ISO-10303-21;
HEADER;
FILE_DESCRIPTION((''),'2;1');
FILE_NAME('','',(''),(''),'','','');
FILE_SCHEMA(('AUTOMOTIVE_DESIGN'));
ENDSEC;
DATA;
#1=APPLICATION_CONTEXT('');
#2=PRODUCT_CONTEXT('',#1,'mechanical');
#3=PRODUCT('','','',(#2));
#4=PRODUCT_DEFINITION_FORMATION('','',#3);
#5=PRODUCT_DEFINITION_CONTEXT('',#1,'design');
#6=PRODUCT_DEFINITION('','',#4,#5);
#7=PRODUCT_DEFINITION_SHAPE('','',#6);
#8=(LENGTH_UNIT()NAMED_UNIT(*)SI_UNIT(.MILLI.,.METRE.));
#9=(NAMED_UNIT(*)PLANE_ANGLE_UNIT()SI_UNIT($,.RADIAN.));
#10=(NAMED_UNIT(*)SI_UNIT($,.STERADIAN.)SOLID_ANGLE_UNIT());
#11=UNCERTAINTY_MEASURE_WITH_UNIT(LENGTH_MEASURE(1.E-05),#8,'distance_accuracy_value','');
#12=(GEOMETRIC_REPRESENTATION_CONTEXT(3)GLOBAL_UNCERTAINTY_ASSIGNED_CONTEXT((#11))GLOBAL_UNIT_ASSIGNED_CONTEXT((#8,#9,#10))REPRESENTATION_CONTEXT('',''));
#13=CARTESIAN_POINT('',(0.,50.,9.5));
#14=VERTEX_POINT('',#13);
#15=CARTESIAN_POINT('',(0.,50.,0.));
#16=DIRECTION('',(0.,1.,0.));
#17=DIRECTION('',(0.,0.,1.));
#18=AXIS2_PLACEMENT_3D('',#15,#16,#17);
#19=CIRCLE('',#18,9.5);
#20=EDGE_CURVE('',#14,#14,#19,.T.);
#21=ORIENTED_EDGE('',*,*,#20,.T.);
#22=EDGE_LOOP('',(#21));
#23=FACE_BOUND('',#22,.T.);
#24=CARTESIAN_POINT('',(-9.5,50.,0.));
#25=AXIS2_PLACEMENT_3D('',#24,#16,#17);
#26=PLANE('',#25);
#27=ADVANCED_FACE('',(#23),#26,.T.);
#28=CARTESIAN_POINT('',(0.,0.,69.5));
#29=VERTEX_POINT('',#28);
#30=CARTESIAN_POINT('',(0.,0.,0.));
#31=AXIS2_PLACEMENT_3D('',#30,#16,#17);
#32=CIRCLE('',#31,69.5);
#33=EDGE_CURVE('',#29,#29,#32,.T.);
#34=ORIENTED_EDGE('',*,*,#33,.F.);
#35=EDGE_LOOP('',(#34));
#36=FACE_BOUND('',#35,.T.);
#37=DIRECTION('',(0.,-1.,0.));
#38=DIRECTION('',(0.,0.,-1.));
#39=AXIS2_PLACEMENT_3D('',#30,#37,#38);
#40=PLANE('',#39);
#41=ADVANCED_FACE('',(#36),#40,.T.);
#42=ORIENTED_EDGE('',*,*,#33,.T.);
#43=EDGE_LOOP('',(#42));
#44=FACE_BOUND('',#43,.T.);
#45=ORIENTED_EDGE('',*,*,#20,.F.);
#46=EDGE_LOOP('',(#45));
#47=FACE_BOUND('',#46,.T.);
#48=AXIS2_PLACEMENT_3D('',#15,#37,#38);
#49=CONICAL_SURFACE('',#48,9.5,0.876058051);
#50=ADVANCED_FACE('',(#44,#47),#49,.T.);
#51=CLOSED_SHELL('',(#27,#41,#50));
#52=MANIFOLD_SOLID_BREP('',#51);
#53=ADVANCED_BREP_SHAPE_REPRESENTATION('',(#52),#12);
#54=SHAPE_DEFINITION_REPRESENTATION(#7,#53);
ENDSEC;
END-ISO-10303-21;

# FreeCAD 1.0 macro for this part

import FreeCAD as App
import Part
import Sketcher

doc = App.newDocument("Part")
params = doc.addObject("Spreadsheet::Sheet", "Params")
for row, (alias, value) in enumerate([
    ("sketch1_height", "50 mm"),
    ("sketch1_width", "69.5 mm"),
    ("sketch1_width2", "9.5 mm"),
    ("revolution_angle", "360 deg"),
], start=1):
    params.set(f"A{row}", alias)
    params.set(f"B{row}", "=" + value)
    params.setAlias(f"B{row}", alias)

body = doc.addObject("PartDesign::Body", "Body")

sketch1 = body.newObject("Sketcher::SketchObject", "Sketch")
sketch1.AttachmentSupport = (doc.getObject("XY_Plane"), [""])
sketch1.MapMode = "FlatFace"
sketch1.addGeometry(Part.LineSegment(App.Vector(-69.5, 0, 0), App.Vector(0, 0, 0)), False)
sketch1.addGeometry(Part.LineSegment(App.Vector(0, 0, 0), App.Vector(0, 50, 0)), False)
sketch1.addGeometry(Part.LineSegment(App.Vector(0, 50, 0), App.Vector(-9.5, 50, 0)), False)
sketch1.addGeometry(Part.LineSegment(App.Vector(-9.5, 50, 0), App.Vector(-69.5, 0, 0)), False)
sketch1.addConstraint(Sketcher.Constraint("Coincident", 0, 2, 1, 1))
sketch1.addConstraint(Sketcher.Constraint("Coincident", 1, 2, 2, 1))
sketch1.addConstraint(Sketcher.Constraint("Coincident", 2, 2, 3, 1))
sketch1.addConstraint(Sketcher.Constraint("Coincident", 3, 2, 0, 1))
sketch1.addConstraint(Sketcher.Constraint("Horizontal", 0))
sketch1.addConstraint(Sketcher.Constraint("Vertical", 1))
sketch1.addConstraint(Sketcher.Constraint("Horizontal", 2))
sketch1.addConstraint(Sketcher.Constraint("Coincident", 0, 2, -1, 1))
sketch1.addConstraint(Sketcher.Constraint("DistanceY", 1, 1, 1, 2, 50.0))
sketch1.addConstraint(Sketcher.Constraint("DistanceX", 0, 1, 0, 2, 69.5))
sketch1.addConstraint(Sketcher.Constraint("DistanceX", 2, 2, 2, 1, 9.5))
sketch1.setExpression("Constraints[8]", "Params.sketch1_height")
sketch1.setExpression("Constraints[9]", "Params.sketch1_width")
sketch1.setExpression("Constraints[10]", "Params.sketch1_width2")
revolution = body.newObject("PartDesign::Revolution", "Revolution")
revolution.Profile = sketch1
revolution.ReferenceAxis = (sketch1, ["V_Axis"])
revolution.setExpression("Angle", "Params.revolution_angle")

doc.recompute()
